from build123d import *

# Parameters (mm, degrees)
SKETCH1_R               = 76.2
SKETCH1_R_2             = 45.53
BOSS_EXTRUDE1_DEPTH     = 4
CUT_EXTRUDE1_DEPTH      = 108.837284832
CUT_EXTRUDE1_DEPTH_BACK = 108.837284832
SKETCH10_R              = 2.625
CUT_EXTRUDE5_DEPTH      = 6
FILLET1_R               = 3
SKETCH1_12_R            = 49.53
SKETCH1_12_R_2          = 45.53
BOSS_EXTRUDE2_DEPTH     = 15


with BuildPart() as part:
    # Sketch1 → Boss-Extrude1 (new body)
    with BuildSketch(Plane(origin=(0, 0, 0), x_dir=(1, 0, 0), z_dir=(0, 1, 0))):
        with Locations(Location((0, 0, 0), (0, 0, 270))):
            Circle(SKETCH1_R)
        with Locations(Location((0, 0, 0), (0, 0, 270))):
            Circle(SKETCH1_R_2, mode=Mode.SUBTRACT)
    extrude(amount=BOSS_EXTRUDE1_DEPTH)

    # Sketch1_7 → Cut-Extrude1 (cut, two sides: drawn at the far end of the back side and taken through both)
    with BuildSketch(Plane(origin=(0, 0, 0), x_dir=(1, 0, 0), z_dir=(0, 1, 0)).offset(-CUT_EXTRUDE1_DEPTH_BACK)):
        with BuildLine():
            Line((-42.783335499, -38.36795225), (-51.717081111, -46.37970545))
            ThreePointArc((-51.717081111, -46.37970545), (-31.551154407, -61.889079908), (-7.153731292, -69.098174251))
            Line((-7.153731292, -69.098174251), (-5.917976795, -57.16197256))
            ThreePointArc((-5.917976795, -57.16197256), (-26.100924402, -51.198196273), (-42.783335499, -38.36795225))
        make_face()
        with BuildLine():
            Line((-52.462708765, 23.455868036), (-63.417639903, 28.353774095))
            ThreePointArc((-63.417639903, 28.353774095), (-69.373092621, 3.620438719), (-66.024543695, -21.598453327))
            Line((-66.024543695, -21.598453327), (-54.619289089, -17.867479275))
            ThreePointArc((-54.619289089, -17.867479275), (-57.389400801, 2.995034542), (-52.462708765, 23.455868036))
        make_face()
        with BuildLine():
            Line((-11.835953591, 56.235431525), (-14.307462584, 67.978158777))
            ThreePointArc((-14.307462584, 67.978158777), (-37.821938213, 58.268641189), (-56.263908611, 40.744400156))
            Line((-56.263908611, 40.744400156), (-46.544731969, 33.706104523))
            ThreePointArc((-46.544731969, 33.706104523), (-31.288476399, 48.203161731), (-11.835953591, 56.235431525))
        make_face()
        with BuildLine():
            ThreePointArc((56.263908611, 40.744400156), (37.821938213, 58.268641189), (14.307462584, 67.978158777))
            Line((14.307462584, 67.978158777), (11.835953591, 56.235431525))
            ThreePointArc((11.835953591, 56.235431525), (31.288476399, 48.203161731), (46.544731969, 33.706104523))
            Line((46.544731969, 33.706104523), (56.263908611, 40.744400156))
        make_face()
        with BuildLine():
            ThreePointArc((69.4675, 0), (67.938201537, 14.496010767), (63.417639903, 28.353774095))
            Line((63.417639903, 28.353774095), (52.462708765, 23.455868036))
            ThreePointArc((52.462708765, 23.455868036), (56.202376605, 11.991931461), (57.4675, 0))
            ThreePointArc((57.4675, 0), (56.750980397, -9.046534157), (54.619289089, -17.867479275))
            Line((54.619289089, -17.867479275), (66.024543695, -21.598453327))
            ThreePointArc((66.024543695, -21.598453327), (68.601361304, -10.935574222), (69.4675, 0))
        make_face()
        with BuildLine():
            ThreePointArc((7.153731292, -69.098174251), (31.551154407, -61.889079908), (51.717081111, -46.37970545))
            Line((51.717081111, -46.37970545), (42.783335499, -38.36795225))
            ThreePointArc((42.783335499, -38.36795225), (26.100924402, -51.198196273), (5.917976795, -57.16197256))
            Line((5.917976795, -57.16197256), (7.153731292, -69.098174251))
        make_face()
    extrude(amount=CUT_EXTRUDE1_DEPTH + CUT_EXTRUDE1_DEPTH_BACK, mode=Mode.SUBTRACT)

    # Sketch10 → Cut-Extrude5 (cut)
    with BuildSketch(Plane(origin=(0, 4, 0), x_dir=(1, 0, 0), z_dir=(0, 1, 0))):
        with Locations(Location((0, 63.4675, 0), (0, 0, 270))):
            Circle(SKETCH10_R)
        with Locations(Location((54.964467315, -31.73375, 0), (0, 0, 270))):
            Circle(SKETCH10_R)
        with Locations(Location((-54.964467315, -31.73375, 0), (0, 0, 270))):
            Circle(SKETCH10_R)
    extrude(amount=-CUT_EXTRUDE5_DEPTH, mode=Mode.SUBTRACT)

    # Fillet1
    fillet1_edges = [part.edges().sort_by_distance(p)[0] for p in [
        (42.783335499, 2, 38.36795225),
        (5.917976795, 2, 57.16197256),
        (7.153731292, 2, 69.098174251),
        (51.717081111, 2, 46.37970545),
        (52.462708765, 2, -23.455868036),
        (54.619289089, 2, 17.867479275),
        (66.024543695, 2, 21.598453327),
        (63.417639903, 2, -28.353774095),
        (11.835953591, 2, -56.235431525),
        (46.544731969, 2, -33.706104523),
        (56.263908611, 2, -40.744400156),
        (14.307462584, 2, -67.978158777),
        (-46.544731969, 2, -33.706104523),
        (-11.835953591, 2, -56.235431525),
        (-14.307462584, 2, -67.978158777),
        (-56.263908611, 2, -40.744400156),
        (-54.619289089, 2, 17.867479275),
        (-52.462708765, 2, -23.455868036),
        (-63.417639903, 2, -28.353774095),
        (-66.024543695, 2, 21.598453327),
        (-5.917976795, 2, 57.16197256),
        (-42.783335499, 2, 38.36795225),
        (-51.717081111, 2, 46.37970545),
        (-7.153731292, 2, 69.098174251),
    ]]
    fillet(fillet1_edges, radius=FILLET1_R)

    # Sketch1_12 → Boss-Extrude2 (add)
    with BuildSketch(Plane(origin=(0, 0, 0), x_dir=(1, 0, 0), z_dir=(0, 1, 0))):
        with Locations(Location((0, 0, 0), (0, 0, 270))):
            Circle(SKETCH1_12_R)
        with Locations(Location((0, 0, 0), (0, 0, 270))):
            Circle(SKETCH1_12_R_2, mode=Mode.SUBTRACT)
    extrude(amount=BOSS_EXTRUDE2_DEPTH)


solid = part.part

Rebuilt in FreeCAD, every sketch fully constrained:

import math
import FreeCAD as App
import Part
import Sketcher


def edges_at(feature, points):
    """Names of the edges that pass closest to the given points."""
    edges = feature.Shape.Edges
    near = lambda p: min(range(len(edges)), key=lambda i: edges[i].distToShape(Part.Vertex(*p))[0])
    return sorted({f"Edge{near(p) + 1}" for p in points})

doc = App.newDocument("Part")
body = doc.addObject("PartDesign::Body", "Body")

sketch1 = body.newObject("Sketcher::SketchObject", "Sketch")
sketch1.AttachmentSupport = (doc.getObject("XZ_Plane"), [""])
sketch1.MapMode = "FlatFace"
sketch1.addGeometry([
    Part.Circle(App.Vector(0, 0, 0), App.Vector(0, 0, 1), 76),
    Part.Circle(App.Vector(0, 0, 0), App.Vector(0, 0, 1), 46),
], False)
sketch1.addConstraint([
    Sketcher.Constraint("Coincident", 0, 3, -1, 1),
    Sketcher.Constraint("Coincident", 1, 3, -1, 1),
    Sketcher.Constraint("Diameter", 0, 152.4),
    Sketcher.Constraint("Diameter", 1, 91.06),
])
pad1 = body.newObject("PartDesign::Pad", "Pad")
pad1.Profile = sketch1
pad1.Length = 4
pad1.Reversed = True

sketch2 = body.newObject("Sketcher::SketchObject", "Sketch001")
sketch2.AttachmentSupport = (doc.getObject("XZ_Plane"), [""])
sketch2.MapMode = "FlatFace"
sketch2.addGeometry([
    Part.LineSegment(App.Vector(-43, 38, 0), App.Vector(-52, 46, 0)),
    Part.ArcOfCircle(Part.Circle(App.Vector(0, 0, 0), App.Vector(0, 0, 1), 69), math.radians(96), math.radians(138)),
    Part.LineSegment(App.Vector(-7, 69, 0), App.Vector(-6, 57, 0)),
    Part.ArcOfCircle(Part.Circle(App.Vector(0, 0, 0), App.Vector(0, 0, 1), 57), math.radians(96), math.radians(138)),
    Part.LineSegment(App.Vector(-52, -23, 0), App.Vector(-63, -28, 0)),
    Part.ArcOfCircle(Part.Circle(App.Vector(0, 0, 0), App.Vector(0, 0, 1), 69), math.radians(162), math.radians(204)),
    Part.LineSegment(App.Vector(-66, 22, 0), App.Vector(-55, 18, 0)),
    Part.ArcOfCircle(Part.Circle(App.Vector(0, 0, 0), App.Vector(0, 0, 1), 57), math.radians(162), math.radians(204)),
    Part.LineSegment(App.Vector(-12, -56, 0), App.Vector(-14, -68, 0)),
    Part.ArcOfCircle(Part.Circle(App.Vector(0, 0, 0), App.Vector(0, 0, 1), 69), math.radians(-144), math.radians(-102)),
    Part.LineSegment(App.Vector(-56, -41, 0), App.Vector(-47, -34, 0)),
    Part.ArcOfCircle(Part.Circle(App.Vector(0, 0, 0), App.Vector(0, 0, 1), 57), math.radians(-144), math.radians(-102)),
    Part.ArcOfCircle(Part.Circle(App.Vector(0, 0, 0), App.Vector(0, 0, 1), 69), math.radians(-78), math.radians(-36)),
    Part.LineSegment(App.Vector(14, -68, 0), App.Vector(12, -56, 0)),
    Part.ArcOfCircle(Part.Circle(App.Vector(0, 0, 0), App.Vector(0, 0, 1), 57), math.radians(-78), math.radians(-36)),
    Part.LineSegment(App.Vector(47, -34, 0), App.Vector(56, -41, 0)),
    Part.ArcOfCircle(Part.Circle(App.Vector(0, 0, 0), App.Vector(0, 0, 1), 69), math.radians(-24), math.radians(0)),
    Part.LineSegment(App.Vector(63, -28, 0), App.Vector(52, -23, 0)),
    Part.ArcOfCircle(Part.Circle(App.Vector(0, 0, 0), App.Vector(0, 0, 1), 57), math.radians(-24), math.radians(0)),
    Part.ArcOfCircle(Part.Circle(App.Vector(0, 0, 0), App.Vector(0, 0, 1), 57), math.radians(0), math.radians(18.11)),
    Part.LineSegment(App.Vector(55, 18, 0), App.Vector(66, 22, 0)),
    Part.ArcOfCircle(Part.Circle(App.Vector(0, 0, 0), App.Vector(0, 0, 1), 69), math.radians(0), math.radians(18.11)),
    Part.ArcOfCircle(Part.Circle(App.Vector(0, 0, 0), App.Vector(0, 0, 1), 69), math.radians(42), math.radians(84)),
    Part.LineSegment(App.Vector(52, 46, 0), App.Vector(43, 38, 0)),
    Part.ArcOfCircle(Part.Circle(App.Vector(0, 0, 0), App.Vector(0, 0, 1), 57), math.radians(42), math.radians(84)),
    Part.LineSegment(App.Vector(6, 57, 0), App.Vector(7, 69, 0)),
], False)
sketch2.addConstraint([
    Sketcher.Constraint("Coincident", 0, 2, 1, 2),
    Sketcher.Constraint("Coincident", 1, 1, 2, 1),
    Sketcher.Constraint("Coincident", 2, 2, 3, 1),
    Sketcher.Constraint("Coincident", 3, 2, 0, 1),
    Sketcher.Constraint("Coincident", 4, 2, 5, 2),
    Sketcher.Constraint("Coincident", 5, 1, 6, 1),
    Sketcher.Constraint("Coincident", 6, 2, 7, 1),
    Sketcher.Constraint("Coincident", 7, 2, 4, 1),
    Sketcher.Constraint("Coincident", 8, 2, 9, 2),
    Sketcher.Constraint("Coincident", 9, 1, 10, 1),
    Sketcher.Constraint("Coincident", 10, 2, 11, 1),
    Sketcher.Constraint("Coincident", 11, 2, 8, 1),
    Sketcher.Constraint("Coincident", 12, 1, 13, 1),
    Sketcher.Constraint("Coincident", 13, 2, 14, 1),
    Sketcher.Constraint("Coincident", 14, 2, 15, 1),
    Sketcher.Constraint("Coincident", 15, 2, 12, 2),
    Sketcher.Constraint("Coincident", 16, 1, 17, 1),
    Sketcher.Constraint("Coincident", 17, 2, 18, 1),
    Sketcher.Constraint("Tangent", 18, 2, 19, 1),
    Sketcher.Constraint("Coincident", 19, 2, 20, 1),
    Sketcher.Constraint("Coincident", 20, 2, 21, 2),
    Sketcher.Constraint("Tangent", 21, 1, 16, 2),
    Sketcher.Constraint("Coincident", 22, 1, 23, 1),
    Sketcher.Constraint("Coincident", 23, 2, 24, 1),
    Sketcher.Constraint("Coincident", 24, 2, 25, 1),
    Sketcher.Constraint("Coincident", 25, 2, 22, 2),
    Sketcher.Constraint("Coincident", 1, 3, -1, 1),
    Sketcher.Constraint("Coincident", 3, 3, -1, 1),
    Sketcher.Constraint("Coincident", 5, 3, -1, 1),
    Sketcher.Constraint("Coincident", 7, 3, -1, 1),
    Sketcher.Constraint("Coincident", 9, 3, -1, 1),
    Sketcher.Constraint("Coincident", 11, 3, -1, 1),
    Sketcher.Constraint("Coincident", 12, 3, -1, 1),
    Sketcher.Constraint("Coincident", 14, 3, -1, 1),
    Sketcher.Constraint("Coincident", 16, 3, -1, 1),
    Sketcher.Constraint("Coincident", 18, 3, -1, 1),
    Sketcher.Constraint("Coincident", 22, 3, -1, 1),
    Sketcher.Constraint("Coincident", 24, 3, -1, 1),
    Sketcher.Constraint("Equal", 1, 5),
    Sketcher.Constraint("Equal", 3, 7),
    Sketcher.Constraint("Equal", 5, 9),
    Sketcher.Constraint("Equal", 7, 11),
    Sketcher.Constraint("Equal", 9, 12),
    Sketcher.Constraint("Equal", 11, 14),
    Sketcher.Constraint("Equal", 12, 16),
    Sketcher.Constraint("Equal", 14, 18),
    Sketcher.Constraint("Equal", 18, 19),
    Sketcher.Constraint("Equal", 16, 21),
    Sketcher.Constraint("Equal", 21, 22),
    Sketcher.Constraint("Equal", 19, 24),
    Sketcher.Constraint("PointOnObject", 18, 2, -1),
    Sketcher.Constraint("PointOnObject", 21, 1, -1),
    Sketcher.Constraint("Horizontal", 8, 2, 12, 1),
    Sketcher.Constraint("Horizontal", 11, 2, 13, 2),
    Sketcher.Constraint("Horizontal", 10, 2, 14, 2),
    Sketcher.Constraint("Horizontal", 9, 1, 15, 2),
    Sketcher.Constraint("Horizontal", 4, 2, 16, 1),
    Sketcher.Constraint("Horizontal", 7, 2, 17, 2),
    Sketcher.Constraint("Horizontal", 6, 2, 19, 2),
    Sketcher.Constraint("Horizontal", 5, 1, 20, 2),
    Sketcher.Constraint("Horizontal", 0, 2, 22, 1),
    Sketcher.Constraint("Horizontal", 3, 2, 23, 2),
    Sketcher.Constraint("Horizontal", 2, 2, 24, 2),
    Sketcher.Constraint("Horizontal", 1, 1, 25, 2),
    Sketcher.Constraint("Distance", 0, 12.0),
    Sketcher.Constraint("Radius", 1, 69.4675),
    Sketcher.Constraint("DistanceY", 9, 1, -1, 1, 40.7444),
    Sketcher.Constraint("DistanceY", 2, 2, 1, 1, 11.936202),
    Sketcher.Constraint("DistanceY", 5, 1, 3, 2, 16.769499),
    Sketcher.Constraint("DistanceX", 9, 1, 7, 2, 3.8012),
    Sketcher.Constraint("DistanceX", 0, 2, -1, 1, 51.717081),
    Sketcher.Constraint("DistanceX", 1, 1, -1, 1, 7.153731),
    Sketcher.Constraint("DistanceX", 4, 2, -1, 1, 63.41764),
    Sketcher.Constraint("DistanceX", 6, 2, -1, 1, 54.619289),
    Sketcher.Constraint("DistanceY", 8, 2, -1, 1, 67.978159),
    Sketcher.Constraint("DistanceX", 10, 2, -1, 1, 46.544732),
    Sketcher.Constraint("DistanceY", 11, 2, -1, 1, 56.235432),
    Sketcher.Constraint("DistanceX", 3, 2, 2, 2, 36.865359),
])
pocket1 = body.newObject("PartDesign::Pocket", "Pocket")
pocket1.Profile = sketch2
pocket1.Type = "ThroughAll"
pocket1.Midplane = True

sketch3 = body.newObject("Sketcher::SketchObject", "Sketch002")
sketch3.AttachmentSupport = (doc.getObject("XZ_Plane"), [""])
sketch3.MapMode = "FlatFace"
sketch3.AttachmentOffset = App.Placement(App.Vector(0, 0, -4), App.Rotation())
sketch3.addGeometry([
    Part.Circle(App.Vector(0, -63.5, 0), App.Vector(0, 0, 1), 2.6),
    Part.Circle(App.Vector(55, 31.7, 0), App.Vector(0, 0, 1), 2.6),
    Part.Circle(App.Vector(-55, 31.7, 0), App.Vector(0, 0, 1), 2.6),
], False)
sketch3.addConstraint([
    Sketcher.Constraint("Equal", 0, 1),
    Sketcher.Constraint("Equal", 1, 2),
    Sketcher.Constraint("Symmetric", 1, 3, 2, 3, -2),
    Sketcher.Constraint("PointOnObject", 0, 3, -2),
    Sketcher.Constraint("Diameter", 0, 5.25),
    Sketcher.Constraint("DistanceY", 0, 3, -1, 1, 63.4675),
    Sketcher.Constraint("DistanceY", -1, 1, 1, 3, 31.73375),
    Sketcher.Constraint("DistanceX", -1, 1, 1, 3, 54.964467),
])
pocket2 = body.newObject("PartDesign::Pocket", "Pocket001")
pocket2.Profile = sketch3
pocket2.Length = 6
pocket2.Reversed = True
doc.recompute()

fillet = body.newObject("PartDesign::Fillet", "Fillet")
fillet.Base = (pocket2, edges_at(pocket2, [
    (42.783, 2, 38.368),
    (5.918, 2, 57.162),
    (7.154, 2, 69.098),
    (51.717, 2, 46.38),
    (52.463, 2, -23.456),
    (54.619, 2, 17.867),
    (66.025, 2, 21.598),
    (63.418, 2, -28.354),
    (11.836, 2, -56.235),
    (46.545, 2, -33.706),
    (56.264, 2, -40.744),
    (14.307, 2, -67.978),
    (-46.545, 2, -33.706),
    (-11.836, 2, -56.235),
    (-14.307, 2, -67.978),
    (-56.264, 2, -40.744),
    (-54.619, 2, 17.867),
    (-52.463, 2, -23.456),
    (-63.418, 2, -28.354),
    (-66.025, 2, 21.598),
    (-5.918, 2, 57.162),
    (-42.783, 2, 38.368),
    (-51.717, 2, 46.38),
    (-7.154, 2, 69.098),
]))
fillet.Radius = 3

sketch4 = body.newObject("Sketcher::SketchObject", "Sketch003")
sketch4.AttachmentSupport = (doc.getObject("XZ_Plane"), [""])
sketch4.MapMode = "FlatFace"
sketch4.addGeometry([
    Part.Circle(App.Vector(0, 0, 0), App.Vector(0, 0, 1), 50),
    Part.Circle(App.Vector(0, 0, 0), App.Vector(0, 0, 1), 46),
], False)
sketch4.addConstraint([
    Sketcher.Constraint("Coincident", 0, 3, -1, 1),
    Sketcher.Constraint("Coincident", 1, 3, -1, 1),
    Sketcher.Constraint("Diameter", 0, 99.06),
    Sketcher.Constraint("Diameter", 1, 91.06),
])
pad2 = body.newObject("PartDesign::Pad", "Pad001")
pad2.Profile = sketch4
pad2.Length = 15
pad2.Reversed = True

doc.recompute()
